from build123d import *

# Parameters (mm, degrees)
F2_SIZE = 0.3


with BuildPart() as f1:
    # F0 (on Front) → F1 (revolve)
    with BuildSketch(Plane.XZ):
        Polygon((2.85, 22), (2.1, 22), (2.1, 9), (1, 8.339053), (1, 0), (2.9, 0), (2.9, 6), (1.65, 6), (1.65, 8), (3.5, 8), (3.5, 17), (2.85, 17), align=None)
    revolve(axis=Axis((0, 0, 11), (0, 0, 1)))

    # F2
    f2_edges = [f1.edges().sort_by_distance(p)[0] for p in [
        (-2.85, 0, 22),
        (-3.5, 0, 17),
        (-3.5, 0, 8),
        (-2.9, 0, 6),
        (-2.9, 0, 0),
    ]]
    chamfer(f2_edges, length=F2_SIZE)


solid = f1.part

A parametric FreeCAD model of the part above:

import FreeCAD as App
import Part
import Sketcher
from FreeCAD import Vector
Q = App.Units.Quantity


def edges_at(feature, points):
    """Names of the edges that pass closest to the given points."""
    edges = feature.Shape.Edges
    near = lambda p: min(range(len(edges)), key=lambda i: edges[i].distToShape(Part.Vertex(*p))[0])
    return sorted({f"Edge{near(p) + 1}" for p in points})

doc = App.newDocument("Part")
body = doc.addObject("PartDesign::Body", "Body")

# Sketch on XZ plane
sketch1 = doc.addObject("Sketcher::SketchObject", "Sketch")
body.addObject(sketch1)
sketch1.AttachmentSupport = (doc.XZ_Plane, [""])
sketch1.MapMode = "FlatFace"
sketch1.addGeometry(Part.LineSegment(Vector(2.9, 22, 0), Vector(2.1, 22, 0)), False)
sketch1.addGeometry(Part.LineSegment(Vector(2.1, 22, 0), Vector(2.1, 9, 0)), False)
sketch1.addGeometry(Part.LineSegment(Vector(2.1, 9, 0), Vector(1, 8.3, 0)), False)
sketch1.addGeometry(Part.LineSegment(Vector(1, 8.3, 0), Vector(1, 0, 0)), False)
sketch1.addGeometry(Part.LineSegment(Vector(1, 0, 0), Vector(2.9, 0, 0)), False)
sketch1.addGeometry(Part.LineSegment(Vector(2.9, 0, 0), Vector(2.9, 6, 0)), False)
sketch1.addGeometry(Part.LineSegment(Vector(2.9, 6, 0), Vector(1.6, 6, 0)), False)
sketch1.addGeometry(Part.LineSegment(Vector(1.6, 6, 0), Vector(1.6, 8, 0)), False)
sketch1.addGeometry(Part.LineSegment(Vector(1.6, 8, 0), Vector(3.5, 8, 0)), False)
sketch1.addGeometry(Part.LineSegment(Vector(3.5, 8, 0), Vector(3.5, 17, 0)), False)
sketch1.addGeometry(Part.LineSegment(Vector(3.5, 17, 0), Vector(2.9, 17, 0)), False)
sketch1.addGeometry(Part.LineSegment(Vector(2.9, 17, 0), Vector(2.9, 22, 0)), False)
sketch1.addConstraint(Sketcher.Constraint("Coincident", 0, 2, 1, 1))
sketch1.addConstraint(Sketcher.Constraint("Coincident", 1, 2, 2, 1))
sketch1.addConstraint(Sketcher.Constraint("Coincident", 2, 2, 3, 1))
sketch1.addConstraint(Sketcher.Constraint("Coincident", 3, 2, 4, 1))
sketch1.addConstraint(Sketcher.Constraint("Coincident", 4, 2, 5, 1))
sketch1.addConstraint(Sketcher.Constraint("Coincident", 5, 2, 6, 1))
sketch1.addConstraint(Sketcher.Constraint("Coincident", 6, 2, 7, 1))
sketch1.addConstraint(Sketcher.Constraint("Coincident", 7, 2, 8, 1))
sketch1.addConstraint(Sketcher.Constraint("Coincident", 8, 2, 9, 1))
sketch1.addConstraint(Sketcher.Constraint("Coincident", 9, 2, 10, 1))
sketch1.addConstraint(Sketcher.Constraint("Coincident", 10, 2, 11, 1))
sketch1.addConstraint(Sketcher.Constraint("Coincident", 11, 2, 0, 1))
sketch1.addConstraint(Sketcher.Constraint("Horizontal", 0))
sketch1.addConstraint(Sketcher.Constraint("Vertical", 1))
sketch1.addConstraint(Sketcher.Constraint("Vertical", 3))
sketch1.addConstraint(Sketcher.Constraint("Horizontal", 4))
sketch1.addConstraint(Sketcher.Constraint("Vertical", 5))
sketch1.addConstraint(Sketcher.Constraint("Horizontal", 6))
sketch1.addConstraint(Sketcher.Constraint("Vertical", 7))
sketch1.addConstraint(Sketcher.Constraint("Horizontal", 8))
sketch1.addConstraint(Sketcher.Constraint("Vertical", 9))
sketch1.addConstraint(Sketcher.Constraint("Horizontal", 10))
sketch1.addConstraint(Sketcher.Constraint("Vertical", 11))
sketch1.addConstraint(Sketcher.Constraint("PointOnObject", 3, 2, -1))
sketch1.addConstraint(Sketcher.Constraint("DistanceY", 1, 2, 1, 1, Q("13 mm")))
sketch1.addConstraint(Sketcher.Constraint("DistanceY", 5, 1, 5, 2, Q("6 mm")))
sketch1.addConstraint(Sketcher.Constraint("DistanceY", 7, 1, 7, 2, Q("2 mm")))
sketch1.addConstraint(Sketcher.Constraint("DistanceY", 9, 1, 9, 2, Q("9 mm")))
sketch1.addConstraint(Sketcher.Constraint("DistanceY", 11, 1, 11, 2, Q("5 mm")))
sketch1.addConstraint(Sketcher.Constraint("Angle", 2, Q("-148.999988 deg")))
sketch1.addConstraint(Sketcher.Constraint("DistanceX", 4, 1, 4, 2, Q("1.9 mm")))
sketch1.addConstraint(Sketcher.Constraint("DistanceX", -1, 1, 2, 2, Q("1 mm")))
sketch1.addConstraint(Sketcher.Constraint("DistanceX", 0, 2, 0, 1, Q("0.75 mm")))
sketch1.addConstraint(Sketcher.Constraint("DistanceX", 6, 2, 6, 1, Q("1.25 mm")))
sketch1.addConstraint(Sketcher.Constraint("DistanceX", 8, 1, 8, 2, Q("1.85 mm")))
sketch1.addConstraint(Sketcher.Constraint("DistanceX", 10, 2, 10, 1, Q("0.65 mm")))
revolution = doc.addObject("PartDesign::Revolution", "Revolution")
body.addObject(revolution)
revolution.Profile = sketch1
revolution.ReferenceAxis = (sketch1, ["V_Axis"])
revolution.Angle = 360
doc.recompute()

chamfer = doc.addObject("PartDesign::Chamfer", "Chamfer")
body.addObject(chamfer)
chamfer.Base = (revolution, edges_at(revolution, [
    (-2.85, 0, 22),
    (-3.5, 0, 17),
    (-3.5, 0, 8),
    (-2.9, 0, 6),
    (-2.9, 0, 0),
]))
chamfer.Size = 0.3

doc.recompute()
